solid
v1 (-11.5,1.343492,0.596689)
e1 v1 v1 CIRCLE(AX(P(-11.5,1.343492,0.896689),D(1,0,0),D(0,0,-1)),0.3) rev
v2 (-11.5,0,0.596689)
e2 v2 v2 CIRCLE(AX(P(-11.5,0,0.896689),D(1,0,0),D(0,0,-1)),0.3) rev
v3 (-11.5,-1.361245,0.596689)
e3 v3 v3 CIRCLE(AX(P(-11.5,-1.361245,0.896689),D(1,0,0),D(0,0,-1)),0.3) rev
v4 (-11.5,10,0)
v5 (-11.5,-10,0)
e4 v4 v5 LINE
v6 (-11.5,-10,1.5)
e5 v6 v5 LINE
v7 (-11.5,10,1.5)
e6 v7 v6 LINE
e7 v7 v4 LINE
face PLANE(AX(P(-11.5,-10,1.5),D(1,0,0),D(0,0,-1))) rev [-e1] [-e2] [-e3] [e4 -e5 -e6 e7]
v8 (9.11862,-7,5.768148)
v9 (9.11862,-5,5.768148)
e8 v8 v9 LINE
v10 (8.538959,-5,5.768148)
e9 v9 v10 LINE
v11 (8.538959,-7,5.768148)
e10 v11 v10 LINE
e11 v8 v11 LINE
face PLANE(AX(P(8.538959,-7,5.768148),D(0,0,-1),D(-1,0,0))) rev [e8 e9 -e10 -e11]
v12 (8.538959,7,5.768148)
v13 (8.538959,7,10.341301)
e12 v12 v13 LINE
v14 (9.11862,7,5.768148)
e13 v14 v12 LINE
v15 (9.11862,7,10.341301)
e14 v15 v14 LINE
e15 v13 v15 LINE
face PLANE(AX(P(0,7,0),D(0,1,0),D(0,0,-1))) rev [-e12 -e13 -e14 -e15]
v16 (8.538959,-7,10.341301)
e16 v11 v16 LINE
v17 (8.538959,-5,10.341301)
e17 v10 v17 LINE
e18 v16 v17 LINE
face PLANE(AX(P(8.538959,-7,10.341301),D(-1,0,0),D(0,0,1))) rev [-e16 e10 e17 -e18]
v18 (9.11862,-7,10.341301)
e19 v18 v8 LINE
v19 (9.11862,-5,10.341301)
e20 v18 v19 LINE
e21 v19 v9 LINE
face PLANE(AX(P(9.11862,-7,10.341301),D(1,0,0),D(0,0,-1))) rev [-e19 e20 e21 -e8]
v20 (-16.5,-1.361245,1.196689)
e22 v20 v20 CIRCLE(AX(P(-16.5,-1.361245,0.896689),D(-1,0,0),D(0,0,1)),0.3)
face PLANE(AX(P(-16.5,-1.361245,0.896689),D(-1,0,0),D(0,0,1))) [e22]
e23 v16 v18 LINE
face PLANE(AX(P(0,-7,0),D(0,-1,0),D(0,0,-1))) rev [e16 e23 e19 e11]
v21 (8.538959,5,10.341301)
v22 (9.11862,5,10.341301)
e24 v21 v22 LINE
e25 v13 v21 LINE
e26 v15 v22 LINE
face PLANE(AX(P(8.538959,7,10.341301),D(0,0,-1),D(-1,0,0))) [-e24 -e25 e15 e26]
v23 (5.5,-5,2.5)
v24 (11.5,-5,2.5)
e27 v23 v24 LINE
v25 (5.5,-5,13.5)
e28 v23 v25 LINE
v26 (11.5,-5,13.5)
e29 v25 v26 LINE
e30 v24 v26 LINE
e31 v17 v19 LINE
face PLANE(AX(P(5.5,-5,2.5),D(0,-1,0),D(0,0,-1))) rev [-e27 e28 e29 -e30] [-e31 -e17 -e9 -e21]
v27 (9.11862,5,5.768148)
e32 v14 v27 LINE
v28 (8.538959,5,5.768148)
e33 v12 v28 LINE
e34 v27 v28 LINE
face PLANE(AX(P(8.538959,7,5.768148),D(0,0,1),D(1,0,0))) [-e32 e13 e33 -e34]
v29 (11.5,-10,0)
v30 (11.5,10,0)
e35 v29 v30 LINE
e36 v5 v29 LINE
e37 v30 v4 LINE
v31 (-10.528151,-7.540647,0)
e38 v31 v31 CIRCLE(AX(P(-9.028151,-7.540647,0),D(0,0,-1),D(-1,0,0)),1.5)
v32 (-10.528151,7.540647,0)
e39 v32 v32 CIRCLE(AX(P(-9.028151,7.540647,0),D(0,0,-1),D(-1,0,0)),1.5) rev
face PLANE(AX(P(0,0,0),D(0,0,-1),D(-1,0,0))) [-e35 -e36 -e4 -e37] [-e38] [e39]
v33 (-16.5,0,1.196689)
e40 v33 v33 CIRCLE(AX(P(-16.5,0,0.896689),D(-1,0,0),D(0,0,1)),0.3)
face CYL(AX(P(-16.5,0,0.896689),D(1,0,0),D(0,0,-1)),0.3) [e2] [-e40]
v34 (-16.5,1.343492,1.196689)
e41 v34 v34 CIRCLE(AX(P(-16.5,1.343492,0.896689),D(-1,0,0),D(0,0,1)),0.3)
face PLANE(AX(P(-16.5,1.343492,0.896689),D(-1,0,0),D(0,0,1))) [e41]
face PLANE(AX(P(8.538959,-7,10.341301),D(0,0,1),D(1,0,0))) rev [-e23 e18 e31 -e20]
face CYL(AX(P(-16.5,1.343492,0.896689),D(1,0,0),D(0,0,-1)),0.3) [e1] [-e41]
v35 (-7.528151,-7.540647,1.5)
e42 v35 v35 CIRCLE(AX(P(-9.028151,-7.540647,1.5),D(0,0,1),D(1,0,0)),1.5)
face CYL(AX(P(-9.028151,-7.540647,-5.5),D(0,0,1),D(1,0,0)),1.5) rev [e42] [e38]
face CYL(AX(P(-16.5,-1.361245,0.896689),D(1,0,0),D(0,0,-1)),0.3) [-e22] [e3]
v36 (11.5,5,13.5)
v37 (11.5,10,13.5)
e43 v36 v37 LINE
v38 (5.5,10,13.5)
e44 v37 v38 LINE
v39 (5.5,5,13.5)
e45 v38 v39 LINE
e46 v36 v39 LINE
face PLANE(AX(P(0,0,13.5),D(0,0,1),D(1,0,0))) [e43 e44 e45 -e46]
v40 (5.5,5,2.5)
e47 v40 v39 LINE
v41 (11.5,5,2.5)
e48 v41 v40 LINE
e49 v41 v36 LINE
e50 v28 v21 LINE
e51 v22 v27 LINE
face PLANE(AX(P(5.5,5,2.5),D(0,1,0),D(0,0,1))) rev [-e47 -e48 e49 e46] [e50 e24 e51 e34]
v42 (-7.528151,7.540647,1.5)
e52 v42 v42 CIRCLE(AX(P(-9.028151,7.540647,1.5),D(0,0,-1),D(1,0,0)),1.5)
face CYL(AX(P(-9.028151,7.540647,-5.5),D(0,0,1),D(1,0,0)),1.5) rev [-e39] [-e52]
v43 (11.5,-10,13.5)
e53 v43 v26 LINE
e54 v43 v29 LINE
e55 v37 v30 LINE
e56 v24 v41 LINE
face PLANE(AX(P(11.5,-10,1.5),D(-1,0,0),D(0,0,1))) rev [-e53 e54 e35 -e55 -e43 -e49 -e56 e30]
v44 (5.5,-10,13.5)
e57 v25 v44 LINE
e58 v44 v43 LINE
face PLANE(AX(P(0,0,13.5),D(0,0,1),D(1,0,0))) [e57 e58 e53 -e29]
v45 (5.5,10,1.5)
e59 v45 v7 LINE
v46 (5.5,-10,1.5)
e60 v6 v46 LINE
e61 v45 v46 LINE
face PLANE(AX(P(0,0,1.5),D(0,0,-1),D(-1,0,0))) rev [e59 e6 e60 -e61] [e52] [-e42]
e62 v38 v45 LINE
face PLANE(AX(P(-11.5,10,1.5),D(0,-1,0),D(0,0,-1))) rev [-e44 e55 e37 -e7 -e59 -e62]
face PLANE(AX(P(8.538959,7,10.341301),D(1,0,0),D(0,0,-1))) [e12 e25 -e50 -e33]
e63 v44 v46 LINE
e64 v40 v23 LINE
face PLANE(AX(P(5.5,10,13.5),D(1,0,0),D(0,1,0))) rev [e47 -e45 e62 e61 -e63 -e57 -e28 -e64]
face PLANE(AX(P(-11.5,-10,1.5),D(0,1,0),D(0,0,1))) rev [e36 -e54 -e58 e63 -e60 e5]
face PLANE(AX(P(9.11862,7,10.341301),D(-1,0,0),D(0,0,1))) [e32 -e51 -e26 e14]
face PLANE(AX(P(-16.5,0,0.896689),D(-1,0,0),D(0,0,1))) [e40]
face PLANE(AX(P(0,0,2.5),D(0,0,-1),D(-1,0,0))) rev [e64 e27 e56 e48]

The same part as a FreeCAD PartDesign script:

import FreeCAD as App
import Part
import Sketcher


def add_polygon(sketch, points):
    """Adds a closed chain of lines whose ends are joined by coincident constraints."""
    first, n = sketch.GeometryCount, len(points)
    for a, b in zip(points, points[1:] + points[:1]):
        sketch.addGeometry(Part.LineSegment(App.Vector(*a, 0), App.Vector(*b, 0)), False)
    for i in range(n):
        sketch.addConstraint(Sketcher.Constraint("Coincident", first + i, 2, first + (i + 1) % n, 1))

doc = App.newDocument("Part")
body = doc.addObject("PartDesign::Body", "Body")

sketch1 = doc.addObject("Sketcher::SketchObject", "Sketch")
body.addObject(sketch1)
sketch1.AttachmentSupport = (doc.XY_Plane, [""])
sketch1.MapMode = "FlatFace"
add_polygon(sketch1, [(-11.5, 10), (-11.5, -10), (11.5, -10), (11.5, 10)])
sketch1.addConstraint([
    Sketcher.Constraint("Vertical", 0),
    Sketcher.Constraint("Horizontal", 1),
    Sketcher.Constraint("Vertical", 2),
    Sketcher.Constraint("Horizontal", 3),
    Sketcher.Constraint("Symmetric", 0, 2, 2, 2, -1, 1),
    Sketcher.Constraint("DistanceX", 1, 1, 1, 2, 23.0),
    Sketcher.Constraint("DistanceY", 0, 2, 0, 1, 20.0),
])
pad1 = doc.addObject("PartDesign::Pad", "Pad")
body.addObject(pad1)
pad1.Profile = sketch1
pad1.Length = 1.5

sketch2 = doc.addObject("Sketcher::SketchObject", "Sketch001")
body.addObject(sketch2)
sketch2.AttachmentSupport = (doc.XY_Plane, [""])
sketch2.MapMode = "FlatFace"
sketch2.AttachmentOffset = App.Placement(App.Vector(0, 0, 1.5), App.Rotation())
add_polygon(sketch2, [(5.5, 10), (5.5, -10), (11.5, -10), (11.5, 10)])
sketch2.addConstraint([
    Sketcher.Constraint("Vertical", 0),
    Sketcher.Constraint("Horizontal", 1),
    Sketcher.Constraint("Vertical", 2),
    Sketcher.Constraint("Horizontal", 3),
    Sketcher.Constraint("DistanceX", 1, 1, 1, 2, 6.0),
    Sketcher.Constraint("DistanceY", 0, 2, 0, 1, 20.0),
    Sketcher.Constraint("DistanceY", 0, 2, -1, 1, 10.0),
    Sketcher.Constraint("DistanceX", -1, 1, 0, 2, 5.5),
])
pad2 = doc.addObject("PartDesign::Pad", "Pad001")
body.addObject(pad2)
pad2.Profile = sketch2
pad2.Length = 12

sketch3 = doc.addObject("Sketcher::SketchObject", "Sketch002")
body.addObject(sketch3)
sketch3.AttachmentSupport = (doc.XY_Plane, [""])
sketch3.MapMode = "FlatFace"
sketch3.AttachmentOffset = App.Placement(App.Vector(0, 0, 13.5), App.Rotation())
add_polygon(sketch3, [(5.5, 5), (5.5, -5), (11.5, -5), (11.5, 5)])
sketch3.addConstraint([
    Sketcher.Constraint("Vertical", 0),
    Sketcher.Constraint("Horizontal", 1),
    Sketcher.Constraint("Vertical", 2),
    Sketcher.Constraint("Horizontal", 3),
    Sketcher.Constraint("DistanceX", 1, 1, 1, 2, 6.0),
    Sketcher.Constraint("DistanceY", 0, 2, 0, 1, 10.0),
    Sketcher.Constraint("DistanceY", 0, 2, -1, 1, 5.0),
    Sketcher.Constraint("DistanceX", -1, 1, 0, 2, 5.5),
])
pocket1 = doc.addObject("PartDesign::Pocket", "Pocket")
body.addObject(pocket1)
pocket1.Profile = sketch3
pocket1.Length = 11

sketch4 = doc.addObject("Sketcher::SketchObject", "Sketch003")
body.addObject(sketch4)
sketch4.AttachmentSupport = (doc.YZ_Plane, [""])
sketch4.MapMode = "FlatFace"
sketch4.AttachmentOffset = App.Placement(App.Vector(0, 0, -11.5), App.Rotation())
sketch4.addGeometry([
    Part.Circle(App.Vector(1.343492, 0.896689, 0), App.Vector(0, 0, 1), 0.3),
    Part.Circle(App.Vector(0, 0.896689, 0), App.Vector(0, 0, 1), 0.3),
    Part.Circle(App.Vector(-1.361245, 0.896689, 0), App.Vector(0, 0, 1), 0.3),
], False)
sketch4.addConstraint([
    Sketcher.Constraint("Equal", 0, 1),
    Sketcher.Constraint("Equal", 1, 2),
    Sketcher.Constraint("PointOnObject", 1, 3, -2),
    Sketcher.Constraint("Horizontal", 0, 3, 1, 3),
    Sketcher.Constraint("Horizontal", 1, 3, 2, 3),
    Sketcher.Constraint("Diameter", 0, 0.6),
    Sketcher.Constraint("DistanceX", -1, 1, 0, 3, 1.343492),
    Sketcher.Constraint("DistanceY", -1, 1, 0, 3, 0.896689),
    Sketcher.Constraint("DistanceX", 2, 3, -1, 1, 1.361245),
])
pad3 = doc.addObject("PartDesign::Pad", "Pad002")
body.addObject(pad3)
pad3.Profile = sketch4
pad3.Length = 5
pad3.Reversed = True

sketch5 = doc.addObject("Sketcher::SketchObject", "Sketch004")
body.addObject(sketch5)
sketch5.AttachmentSupport = (doc.XY_Plane, [""])
sketch5.MapMode = "FlatFace"
sketch5.AttachmentOffset = App.Placement(App.Vector(0, 0, 1.5), App.Rotation())
sketch5.addGeometry(Part.Circle(App.Vector(-9.028151, -7.540647, 0), App.Vector(0, 0, 1), 1.5), False)
sketch5.addConstraint([
    Sketcher.Constraint("Diameter", 0, 3.0),
    Sketcher.Constraint("DistanceX", 0, 3, -1, 1, 9.028151),
    Sketcher.Constraint("DistanceY", 0, 3, -1, 1, 7.540647),
])
pocket2 = doc.addObject("PartDesign::Pocket", "Pocket001")
body.addObject(pocket2)
pocket2.Profile = sketch5
pocket2.Length = 7
doc.recompute()

mirrored = doc.addObject("PartDesign::Mirrored", "Mirrored")
body.addObject(mirrored)
mirrored.Originals = [pocket2]
mirrored.MirrorPlane = (doc.XZ_Plane, [""])
body.Tip = mirrored

sketch6 = doc.addObject("Sketcher::SketchObject", "Sketch005")
body.addObject(sketch6)
sketch6.AttachmentSupport = (doc.XZ_Plane, [""])
sketch6.MapMode = "FlatFace"
sketch6.AttachmentOffset = App.Placement(App.Vector(0, 0, 5), App.Rotation())
add_polygon(sketch6, [(8.538959, 5.768148), (8.538959, 10.341301), (9.11862, 10.341301), (9.11862, 5.768148)])
sketch6.addConstraint([
    Sketcher.Constraint("Vertical", 0),
    Sketcher.Constraint("Horizontal", 1),
    Sketcher.Constraint("Vertical", 2),
    Sketcher.Constraint("Horizontal", 3),
    Sketcher.Constraint("DistanceX", 1, 1, 1, 2, 0.579661),
    Sketcher.Constraint("DistanceY", -1, 1, 0, 2, 10.341301),
    Sketcher.Constraint("DistanceY", 0, 1, 0, 2, 4.573153),
    Sketcher.Constraint("DistanceX", -1, 1, 0, 2, 8.538959),
])
pocket3 = doc.addObject("PartDesign::Pocket", "Pocket002")
body.addObject(pocket3)
pocket3.Profile = sketch6
pocket3.Length = 2
pocket3.Reversed = True
doc.recompute()

mirrored2 = doc.addObject("PartDesign::Mirrored", "Mirrored001")
body.addObject(mirrored2)
mirrored2.Originals = [pocket3]
mirrored2.MirrorPlane = (doc.XZ_Plane, [""])
body.Tip = mirrored2

doc.recompute()
